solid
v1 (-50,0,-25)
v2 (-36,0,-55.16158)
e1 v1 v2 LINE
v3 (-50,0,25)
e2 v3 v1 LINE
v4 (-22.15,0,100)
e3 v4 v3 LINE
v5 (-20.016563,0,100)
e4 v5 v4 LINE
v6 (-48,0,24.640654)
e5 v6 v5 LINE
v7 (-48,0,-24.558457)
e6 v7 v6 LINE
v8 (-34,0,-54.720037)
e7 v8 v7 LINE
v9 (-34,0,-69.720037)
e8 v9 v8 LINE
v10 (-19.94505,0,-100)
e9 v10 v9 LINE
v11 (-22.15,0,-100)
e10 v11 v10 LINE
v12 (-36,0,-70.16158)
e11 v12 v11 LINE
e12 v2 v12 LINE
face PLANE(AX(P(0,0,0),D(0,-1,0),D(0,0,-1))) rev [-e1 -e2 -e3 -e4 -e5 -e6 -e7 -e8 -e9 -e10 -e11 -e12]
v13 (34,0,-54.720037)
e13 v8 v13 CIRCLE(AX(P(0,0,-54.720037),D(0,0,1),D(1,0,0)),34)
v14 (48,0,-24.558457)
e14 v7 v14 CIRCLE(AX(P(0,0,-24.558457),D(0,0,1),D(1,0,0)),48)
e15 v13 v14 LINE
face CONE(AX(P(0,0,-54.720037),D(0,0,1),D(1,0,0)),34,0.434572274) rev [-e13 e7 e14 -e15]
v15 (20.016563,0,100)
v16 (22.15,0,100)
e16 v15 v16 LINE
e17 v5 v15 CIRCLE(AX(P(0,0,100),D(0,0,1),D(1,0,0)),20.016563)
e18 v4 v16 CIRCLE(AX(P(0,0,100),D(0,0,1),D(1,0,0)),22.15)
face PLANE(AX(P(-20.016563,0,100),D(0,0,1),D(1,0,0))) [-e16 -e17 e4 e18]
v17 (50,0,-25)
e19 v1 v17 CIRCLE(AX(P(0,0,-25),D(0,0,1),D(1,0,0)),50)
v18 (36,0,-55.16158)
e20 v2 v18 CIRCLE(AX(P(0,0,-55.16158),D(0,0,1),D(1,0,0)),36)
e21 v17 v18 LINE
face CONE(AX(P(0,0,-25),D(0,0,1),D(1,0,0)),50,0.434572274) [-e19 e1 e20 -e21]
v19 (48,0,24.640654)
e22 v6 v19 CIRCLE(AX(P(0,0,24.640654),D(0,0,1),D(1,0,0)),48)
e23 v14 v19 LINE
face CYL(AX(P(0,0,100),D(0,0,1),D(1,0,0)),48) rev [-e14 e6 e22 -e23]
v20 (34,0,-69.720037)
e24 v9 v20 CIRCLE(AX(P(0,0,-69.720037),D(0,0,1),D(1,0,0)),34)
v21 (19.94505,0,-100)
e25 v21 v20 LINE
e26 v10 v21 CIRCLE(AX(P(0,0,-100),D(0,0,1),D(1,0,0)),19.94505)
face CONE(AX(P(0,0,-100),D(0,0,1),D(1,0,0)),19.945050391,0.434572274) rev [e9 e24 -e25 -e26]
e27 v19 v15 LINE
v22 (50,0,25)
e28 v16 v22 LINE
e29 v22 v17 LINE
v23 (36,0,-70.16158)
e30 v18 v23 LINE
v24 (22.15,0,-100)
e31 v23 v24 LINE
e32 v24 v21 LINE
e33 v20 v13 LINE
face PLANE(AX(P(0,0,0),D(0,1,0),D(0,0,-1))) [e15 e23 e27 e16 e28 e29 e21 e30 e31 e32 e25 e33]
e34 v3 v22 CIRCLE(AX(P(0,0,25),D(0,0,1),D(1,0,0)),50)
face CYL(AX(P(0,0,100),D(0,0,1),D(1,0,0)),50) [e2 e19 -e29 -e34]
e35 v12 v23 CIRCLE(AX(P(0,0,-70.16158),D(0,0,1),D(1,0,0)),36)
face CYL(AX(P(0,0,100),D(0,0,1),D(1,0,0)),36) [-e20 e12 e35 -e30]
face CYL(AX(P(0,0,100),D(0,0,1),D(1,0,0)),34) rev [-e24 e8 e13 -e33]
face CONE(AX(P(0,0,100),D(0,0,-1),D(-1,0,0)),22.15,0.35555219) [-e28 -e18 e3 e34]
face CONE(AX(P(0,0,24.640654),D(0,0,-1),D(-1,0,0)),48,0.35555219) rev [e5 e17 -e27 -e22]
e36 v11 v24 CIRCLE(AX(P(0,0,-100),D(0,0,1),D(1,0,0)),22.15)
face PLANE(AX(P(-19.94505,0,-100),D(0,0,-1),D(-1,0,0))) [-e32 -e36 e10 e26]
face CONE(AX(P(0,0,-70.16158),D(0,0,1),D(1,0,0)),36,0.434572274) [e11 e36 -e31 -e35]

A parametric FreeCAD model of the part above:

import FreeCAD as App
import Part
import Sketcher

V = App.Vector
Q = App.Units.Quantity

doc = App.newDocument("Part")
body = doc.addObject("PartDesign::Body", "Body")

sketch1 = body.newObject("Sketcher::SketchObject", "Sketch")
sketch1.AttachmentSupport = (doc.getObject("YZ_Plane"), [""])
sketch1.MapMode = "FlatFace"
sketch1.addGeometry(Part.LineSegment(V(-22.1, 100, 0), V(-50, 25, 0)), False)
sketch1.addGeometry(Part.LineSegment(V(-50, 25, 0), V(-50, -25, 0)), False)
sketch1.addGeometry(Part.LineSegment(V(-50, -25, 0), V(-36, -55.2, 0)), False)
sketch1.addGeometry(Part.LineSegment(V(-36, -55.2, 0), V(-36, -70.2, 0)), False)
sketch1.addGeometry(Part.LineSegment(V(-36, -70.2, 0), V(-22.1, -100, 0)), False)
sketch1.addGeometry(Part.LineSegment(V(-22.1, -100, 0), V(-19.9, -100, 0)), False)
sketch1.addGeometry(Part.LineSegment(V(-19.9, -100, 0), V(-34, -69.7, 0)), False)
sketch1.addGeometry(Part.LineSegment(V(-34, -69.7, 0), V(-34, -54.7, 0)), False)
sketch1.addGeometry(Part.LineSegment(V(-34, -54.7, 0), V(-48, -24.6, 0)), False)
sketch1.addGeometry(Part.LineSegment(V(-48, -24.6, 0), V(-48, 24.6, 0)), False)
sketch1.addGeometry(Part.LineSegment(V(-48, 24.6, 0), V(-20, 100, 0)), False)
sketch1.addGeometry(Part.LineSegment(V(-20, 100, 0), V(-22.1, 100, 0)), False)
sketch1.addConstraint(Sketcher.Constraint("Coincident", 0, 2, 1, 1))
sketch1.addConstraint(Sketcher.Constraint("Coincident", 1, 2, 2, 1))
sketch1.addConstraint(Sketcher.Constraint("Coincident", 2, 2, 3, 1))
sketch1.addConstraint(Sketcher.Constraint("Coincident", 3, 2, 4, 1))
sketch1.addConstraint(Sketcher.Constraint("Coincident", 4, 2, 5, 1))
sketch1.addConstraint(Sketcher.Constraint("Coincident", 5, 2, 6, 1))
sketch1.addConstraint(Sketcher.Constraint("Coincident", 6, 2, 7, 1))
sketch1.addConstraint(Sketcher.Constraint("Coincident", 7, 2, 8, 1))
sketch1.addConstraint(Sketcher.Constraint("Coincident", 8, 2, 9, 1))
sketch1.addConstraint(Sketcher.Constraint("Coincident", 9, 2, 10, 1))
sketch1.addConstraint(Sketcher.Constraint("Coincident", 10, 2, 11, 1))
sketch1.addConstraint(Sketcher.Constraint("Coincident", 11, 2, 0, 1))
sketch1.addConstraint(Sketcher.Constraint("Vertical", 1))
sketch1.addConstraint(Sketcher.Constraint("Vertical", 3))
sketch1.addConstraint(Sketcher.Constraint("Horizontal", 5))
sketch1.addConstraint(Sketcher.Constraint("Vertical", 7))
sketch1.addConstraint(Sketcher.Constraint("Vertical", 9))
sketch1.addConstraint(Sketcher.Constraint("Horizontal", 11))
sketch1.addConstraint(Sketcher.Constraint("Symmetric", 4, 2, 11, 2, -1))
sketch1.addConstraint(Sketcher.Constraint("Parallel", 2, 4))
sketch1.addConstraint(Sketcher.Constraint("Parallel", 4, 6))
sketch1.addConstraint(Sketcher.Constraint("Parallel", 6, 8))
sketch1.addConstraint(Sketcher.Constraint("Parallel", 0, 10))
sketch1.addConstraint(Sketcher.Constraint("Equal", 3, 7))
sketch1.addConstraint(Sketcher.Constraint("Equal", 2, 8))
sketch1.addConstraint(Sketcher.Constraint("DistanceY", 1, 2, 1, 1, Q("50 mm")))
sketch1.addConstraint(Sketcher.Constraint("DistanceY", 3, 2, 3, 1, Q("15 mm")))
sketch1.addConstraint(Sketcher.Constraint("DistanceX", 0, 2, -1, 1, Q("50 mm")))
sketch1.addConstraint(Sketcher.Constraint("DistanceY", -1, 1, 0, 2, Q("25 mm")))
sketch1.addConstraint(Sketcher.Constraint("DistanceX", 2, 2, -1, 1, Q("36 mm")))
sketch1.addConstraint(Sketcher.Constraint("DistanceY", 4, 2, -1, 1, Q("100 mm")))
sketch1.addConstraint(Sketcher.Constraint("DistanceX", 6, 2, -1, 1, Q("34 mm")))
sketch1.addConstraint(Sketcher.Constraint("DistanceX", 4, 2, -1, 1, Q("22.15 mm")))
sketch1.addConstraint(Sketcher.Constraint("DistanceX", 5, 1, 5, 2, Q("2.20495 mm")))
sketch1.addConstraint(Sketcher.Constraint("DistanceY", 9, 1, 9, 2, Q("49.199111 mm")))
revolution = body.newObject("PartDesign::Revolution", "Revolution")
revolution.Profile = sketch1
revolution.ReferenceAxis = (sketch1, ["V_Axis"])
revolution.Angle = 90
revolution.Reversed = True

sketch2 = body.newObject("Sketcher::SketchObject", "Sketch001")
sketch2.AttachmentSupport = (doc.getObject("YZ_Plane"), [""])
sketch2.MapMode = "FlatFace"
sketch2.addGeometry(Part.LineSegment(V(-22.1, 100, 0), V(-50, 25, 0)), False)
sketch2.addGeometry(Part.LineSegment(V(-50, 25, 0), V(-50, -25, 0)), False)
sketch2.addGeometry(Part.LineSegment(V(-50, -25, 0), V(-36, -55.2, 0)), False)
sketch2.addGeometry(Part.LineSegment(V(-36, -55.2, 0), V(-36, -70.2, 0)), False)
sketch2.addGeometry(Part.LineSegment(V(-36, -70.2, 0), V(-22.1, -100, 0)), False)
sketch2.addGeometry(Part.LineSegment(V(-22.1, -100, 0), V(-19.9, -100, 0)), False)
sketch2.addGeometry(Part.LineSegment(V(-19.9, -100, 0), V(-34, -69.7, 0)), False)
sketch2.addGeometry(Part.LineSegment(V(-34, -69.7, 0), V(-34, -54.7, 0)), False)
sketch2.addGeometry(Part.LineSegment(V(-34, -54.7, 0), V(-48, -24.6, 0)), False)
sketch2.addGeometry(Part.LineSegment(V(-48, -24.6, 0), V(-48, 24.6, 0)), False)
sketch2.addGeometry(Part.LineSegment(V(-48, 24.6, 0), V(-20, 100, 0)), False)
sketch2.addGeometry(Part.LineSegment(V(-20, 100, 0), V(-22.1, 100, 0)), False)
sketch2.addConstraint(Sketcher.Constraint("Coincident", 0, 2, 1, 1))
sketch2.addConstraint(Sketcher.Constraint("Coincident", 1, 2, 2, 1))
sketch2.addConstraint(Sketcher.Constraint("Coincident", 2, 2, 3, 1))
sketch2.addConstraint(Sketcher.Constraint("Coincident", 3, 2, 4, 1))
sketch2.addConstraint(Sketcher.Constraint("Coincident", 4, 2, 5, 1))
sketch2.addConstraint(Sketcher.Constraint("Coincident", 5, 2, 6, 1))
sketch2.addConstraint(Sketcher.Constraint("Coincident", 6, 2, 7, 1))
sketch2.addConstraint(Sketcher.Constraint("Coincident", 7, 2, 8, 1))
sketch2.addConstraint(Sketcher.Constraint("Coincident", 8, 2, 9, 1))
sketch2.addConstraint(Sketcher.Constraint("Coincident", 9, 2, 10, 1))
sketch2.addConstraint(Sketcher.Constraint("Coincident", 10, 2, 11, 1))
sketch2.addConstraint(Sketcher.Constraint("Coincident", 11, 2, 0, 1))
sketch2.addConstraint(Sketcher.Constraint("Vertical", 1))
sketch2.addConstraint(Sketcher.Constraint("Vertical", 3))
sketch2.addConstraint(Sketcher.Constraint("Horizontal", 5))
sketch2.addConstraint(Sketcher.Constraint("Vertical", 7))
sketch2.addConstraint(Sketcher.Constraint("Vertical", 9))
sketch2.addConstraint(Sketcher.Constraint("Horizontal", 11))
sketch2.addConstraint(Sketcher.Constraint("Symmetric", 4, 2, 11, 2, -1))
sketch2.addConstraint(Sketcher.Constraint("Parallel", 2, 4))
sketch2.addConstraint(Sketcher.Constraint("Parallel", 4, 6))
sketch2.addConstraint(Sketcher.Constraint("Parallel", 6, 8))
sketch2.addConstraint(Sketcher.Constraint("Parallel", 0, 10))
sketch2.addConstraint(Sketcher.Constraint("Equal", 3, 7))
sketch2.addConstraint(Sketcher.Constraint("Equal", 2, 8))
sketch2.addConstraint(Sketcher.Constraint("DistanceY", 1, 2, 1, 1, Q("50 mm")))
sketch2.addConstraint(Sketcher.Constraint("DistanceY", 3, 2, 3, 1, Q("15 mm")))
sketch2.addConstraint(Sketcher.Constraint("DistanceX", 0, 2, -1, 1, Q("50 mm")))
sketch2.addConstraint(Sketcher.Constraint("DistanceY", -1, 1, 0, 2, Q("25 mm")))
sketch2.addConstraint(Sketcher.Constraint("DistanceX", 2, 2, -1, 1, Q("36 mm")))
sketch2.addConstraint(Sketcher.Constraint("DistanceY", 4, 2, -1, 1, Q("100 mm")))
sketch2.addConstraint(Sketcher.Constraint("DistanceX", 6, 2, -1, 1, Q("34 mm")))
sketch2.addConstraint(Sketcher.Constraint("DistanceX", 4, 2, -1, 1, Q("22.15 mm")))
sketch2.addConstraint(Sketcher.Constraint("DistanceX", 5, 1, 5, 2, Q("2.20495 mm")))
sketch2.addConstraint(Sketcher.Constraint("DistanceY", 9, 1, 9, 2, Q("49.199111 mm")))
revolution2 = body.newObject("PartDesign::Revolution", "Revolution001")
revolution2.Profile = sketch2
revolution2.ReferenceAxis = (sketch2, ["V_Axis"])
revolution2.Angle = 90

doc.recompute()
